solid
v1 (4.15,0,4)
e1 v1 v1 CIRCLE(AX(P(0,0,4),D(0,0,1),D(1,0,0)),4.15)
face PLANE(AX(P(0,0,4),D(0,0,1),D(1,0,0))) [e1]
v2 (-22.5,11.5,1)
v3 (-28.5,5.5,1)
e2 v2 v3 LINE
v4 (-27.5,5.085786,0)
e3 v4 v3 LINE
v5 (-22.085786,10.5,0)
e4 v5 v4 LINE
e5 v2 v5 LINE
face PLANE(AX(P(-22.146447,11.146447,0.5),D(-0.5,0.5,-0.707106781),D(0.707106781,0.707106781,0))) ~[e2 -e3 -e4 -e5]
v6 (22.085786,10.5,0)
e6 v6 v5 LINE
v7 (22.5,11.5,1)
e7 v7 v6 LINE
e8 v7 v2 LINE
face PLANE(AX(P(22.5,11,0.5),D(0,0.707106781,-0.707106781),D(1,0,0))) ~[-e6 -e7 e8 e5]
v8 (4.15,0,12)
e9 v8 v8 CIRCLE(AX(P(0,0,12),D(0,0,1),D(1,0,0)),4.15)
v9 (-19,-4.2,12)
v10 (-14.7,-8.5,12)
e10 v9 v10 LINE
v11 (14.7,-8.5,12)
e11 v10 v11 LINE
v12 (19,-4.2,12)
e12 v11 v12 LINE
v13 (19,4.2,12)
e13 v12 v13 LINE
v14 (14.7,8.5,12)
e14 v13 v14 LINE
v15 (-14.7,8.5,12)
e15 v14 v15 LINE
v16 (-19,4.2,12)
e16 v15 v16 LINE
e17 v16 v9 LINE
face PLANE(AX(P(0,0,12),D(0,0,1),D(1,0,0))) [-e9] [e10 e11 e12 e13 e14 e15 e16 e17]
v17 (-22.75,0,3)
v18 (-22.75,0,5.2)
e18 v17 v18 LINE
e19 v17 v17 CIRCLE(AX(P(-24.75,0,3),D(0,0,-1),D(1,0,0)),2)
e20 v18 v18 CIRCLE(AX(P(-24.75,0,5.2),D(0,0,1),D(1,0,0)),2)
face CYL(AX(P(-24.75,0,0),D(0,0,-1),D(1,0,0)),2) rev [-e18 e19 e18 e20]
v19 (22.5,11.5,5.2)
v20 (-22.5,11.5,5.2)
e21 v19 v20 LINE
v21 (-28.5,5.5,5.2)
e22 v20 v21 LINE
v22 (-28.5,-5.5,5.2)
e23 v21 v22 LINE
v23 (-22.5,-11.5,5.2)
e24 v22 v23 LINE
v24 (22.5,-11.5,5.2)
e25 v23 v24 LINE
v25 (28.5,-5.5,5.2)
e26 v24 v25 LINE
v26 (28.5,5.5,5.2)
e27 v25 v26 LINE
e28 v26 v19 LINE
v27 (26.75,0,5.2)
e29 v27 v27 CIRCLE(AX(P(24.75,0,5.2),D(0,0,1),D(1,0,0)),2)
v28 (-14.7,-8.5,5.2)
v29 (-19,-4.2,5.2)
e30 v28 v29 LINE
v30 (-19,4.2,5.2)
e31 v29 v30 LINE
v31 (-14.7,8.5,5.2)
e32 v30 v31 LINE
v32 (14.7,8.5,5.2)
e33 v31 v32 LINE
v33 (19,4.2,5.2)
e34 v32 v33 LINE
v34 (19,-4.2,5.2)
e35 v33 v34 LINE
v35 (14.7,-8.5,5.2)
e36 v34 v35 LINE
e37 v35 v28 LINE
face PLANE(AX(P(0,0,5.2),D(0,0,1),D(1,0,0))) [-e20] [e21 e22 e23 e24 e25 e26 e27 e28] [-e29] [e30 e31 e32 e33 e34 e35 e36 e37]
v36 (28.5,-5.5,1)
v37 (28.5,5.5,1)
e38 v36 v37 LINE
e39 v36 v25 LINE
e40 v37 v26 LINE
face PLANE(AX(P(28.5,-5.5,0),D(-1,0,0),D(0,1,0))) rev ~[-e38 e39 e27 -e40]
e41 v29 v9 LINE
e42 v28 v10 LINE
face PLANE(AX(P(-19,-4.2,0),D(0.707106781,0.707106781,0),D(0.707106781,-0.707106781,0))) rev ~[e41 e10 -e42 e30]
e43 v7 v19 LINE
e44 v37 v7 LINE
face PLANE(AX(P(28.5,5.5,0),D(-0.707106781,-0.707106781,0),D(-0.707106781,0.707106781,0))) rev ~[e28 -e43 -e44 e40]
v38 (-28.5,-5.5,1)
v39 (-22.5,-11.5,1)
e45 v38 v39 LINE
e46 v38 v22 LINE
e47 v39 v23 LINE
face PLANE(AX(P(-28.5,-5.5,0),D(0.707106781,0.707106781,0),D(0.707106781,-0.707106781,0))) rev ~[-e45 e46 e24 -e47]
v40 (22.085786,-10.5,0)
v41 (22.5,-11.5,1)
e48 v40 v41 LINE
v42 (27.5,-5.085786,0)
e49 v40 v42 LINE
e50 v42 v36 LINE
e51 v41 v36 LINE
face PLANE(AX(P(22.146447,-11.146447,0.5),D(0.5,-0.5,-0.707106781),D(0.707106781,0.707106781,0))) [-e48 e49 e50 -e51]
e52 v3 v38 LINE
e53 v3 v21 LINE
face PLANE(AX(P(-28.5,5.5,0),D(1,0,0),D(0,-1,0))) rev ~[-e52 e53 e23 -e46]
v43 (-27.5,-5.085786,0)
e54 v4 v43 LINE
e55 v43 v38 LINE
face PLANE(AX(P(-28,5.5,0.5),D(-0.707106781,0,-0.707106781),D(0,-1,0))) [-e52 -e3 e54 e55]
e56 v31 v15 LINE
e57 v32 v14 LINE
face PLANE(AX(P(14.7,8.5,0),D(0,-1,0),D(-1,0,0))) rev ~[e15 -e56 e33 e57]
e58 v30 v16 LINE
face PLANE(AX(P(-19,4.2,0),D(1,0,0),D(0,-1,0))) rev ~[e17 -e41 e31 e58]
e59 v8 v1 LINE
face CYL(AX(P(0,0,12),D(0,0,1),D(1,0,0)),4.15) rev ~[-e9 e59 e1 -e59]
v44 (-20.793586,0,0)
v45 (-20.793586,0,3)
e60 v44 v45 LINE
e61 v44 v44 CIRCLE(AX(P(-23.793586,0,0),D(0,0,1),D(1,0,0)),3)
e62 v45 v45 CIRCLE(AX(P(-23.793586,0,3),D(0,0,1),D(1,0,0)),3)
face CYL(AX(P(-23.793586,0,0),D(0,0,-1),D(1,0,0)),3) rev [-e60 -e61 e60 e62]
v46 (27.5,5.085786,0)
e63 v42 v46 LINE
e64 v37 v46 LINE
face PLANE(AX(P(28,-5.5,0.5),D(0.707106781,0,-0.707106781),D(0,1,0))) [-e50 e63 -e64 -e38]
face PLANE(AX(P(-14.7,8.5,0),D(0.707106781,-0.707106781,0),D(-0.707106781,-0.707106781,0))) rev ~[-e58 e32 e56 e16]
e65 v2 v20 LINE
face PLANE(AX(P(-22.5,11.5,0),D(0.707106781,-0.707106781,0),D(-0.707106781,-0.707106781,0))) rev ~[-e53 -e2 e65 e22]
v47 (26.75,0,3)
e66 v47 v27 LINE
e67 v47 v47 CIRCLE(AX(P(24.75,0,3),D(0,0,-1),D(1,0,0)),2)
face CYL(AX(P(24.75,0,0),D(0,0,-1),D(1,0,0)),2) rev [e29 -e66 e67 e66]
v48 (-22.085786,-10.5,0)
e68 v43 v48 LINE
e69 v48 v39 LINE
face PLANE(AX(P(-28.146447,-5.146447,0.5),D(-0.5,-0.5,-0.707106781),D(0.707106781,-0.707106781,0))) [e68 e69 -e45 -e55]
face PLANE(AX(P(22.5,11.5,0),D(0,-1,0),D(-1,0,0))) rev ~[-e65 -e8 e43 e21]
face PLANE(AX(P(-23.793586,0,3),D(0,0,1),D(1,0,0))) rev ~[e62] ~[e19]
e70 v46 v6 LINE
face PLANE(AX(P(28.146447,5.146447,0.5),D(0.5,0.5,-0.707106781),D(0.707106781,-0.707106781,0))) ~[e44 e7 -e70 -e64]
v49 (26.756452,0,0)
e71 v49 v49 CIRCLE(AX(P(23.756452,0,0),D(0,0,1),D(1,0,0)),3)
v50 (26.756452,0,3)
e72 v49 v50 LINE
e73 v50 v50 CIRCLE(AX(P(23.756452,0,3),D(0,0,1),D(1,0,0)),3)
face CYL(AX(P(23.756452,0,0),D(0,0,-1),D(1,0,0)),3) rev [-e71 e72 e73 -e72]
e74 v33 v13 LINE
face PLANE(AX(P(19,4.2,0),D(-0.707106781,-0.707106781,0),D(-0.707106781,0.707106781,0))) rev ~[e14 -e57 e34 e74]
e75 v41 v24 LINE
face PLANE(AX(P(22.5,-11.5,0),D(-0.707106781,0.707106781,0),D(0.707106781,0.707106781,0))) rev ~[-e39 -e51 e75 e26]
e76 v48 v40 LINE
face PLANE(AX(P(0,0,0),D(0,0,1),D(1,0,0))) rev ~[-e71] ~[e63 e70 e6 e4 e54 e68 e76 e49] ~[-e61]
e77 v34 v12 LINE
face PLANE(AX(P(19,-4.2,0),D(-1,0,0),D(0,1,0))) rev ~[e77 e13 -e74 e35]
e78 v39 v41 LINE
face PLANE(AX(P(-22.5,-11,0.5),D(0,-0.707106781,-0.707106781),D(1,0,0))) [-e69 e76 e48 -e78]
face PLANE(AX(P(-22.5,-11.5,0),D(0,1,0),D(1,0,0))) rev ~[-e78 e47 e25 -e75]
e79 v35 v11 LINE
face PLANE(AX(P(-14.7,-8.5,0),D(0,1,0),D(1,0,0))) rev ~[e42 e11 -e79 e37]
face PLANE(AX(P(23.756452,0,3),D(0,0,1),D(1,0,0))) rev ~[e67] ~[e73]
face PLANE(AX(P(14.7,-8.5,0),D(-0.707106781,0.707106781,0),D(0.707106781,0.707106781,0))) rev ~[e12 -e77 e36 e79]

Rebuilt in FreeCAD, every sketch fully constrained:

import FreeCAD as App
import Part
import Sketcher
from FreeCAD import Vector


def edges_at(feature, points):
    """Names of the edges that pass closest to the given points."""
    edges = feature.Shape.Edges
    near = lambda p: min(range(len(edges)), key=lambda i: edges[i].distToShape(Part.Vertex(*p))[0])
    return sorted({f"Edge{near(p) + 1}" for p in points})


def add_polygon(sketch, points):
    """Adds a closed chain of lines whose ends are joined by coincident constraints."""
    first, n = sketch.GeometryCount, len(points)
    for a, b in zip(points, points[1:] + points[:1]):
        sketch.addGeometry(Part.LineSegment(App.Vector(*a, 0), App.Vector(*b, 0)), False)
    for i in range(n):
        sketch.addConstraint(Sketcher.Constraint("Coincident", first + i, 2, first + (i + 1) % n, 1))

doc = App.newDocument("Part")
body = doc.addObject("PartDesign::Body", "Body")

# Sketch on XY plane
sketch1 = body.newObject("Sketcher::SketchObject", "Sketch")
sketch1.AttachmentSupport = (doc.getObject("XY_Plane"), [""])
sketch1.MapMode = "FlatFace"
add_polygon(sketch1, [(15, 8), (-15, 8), (-19, 4), (-19, -4), (-15, -8), (15, -8), (19, -4), (19, 4)])  # lines 0-7
sketch1.addConstraint(Sketcher.Constraint("Horizontal", 0))
sketch1.addConstraint(Sketcher.Constraint("Vertical", 2))
sketch1.addConstraint(Sketcher.Constraint("Horizontal", 4))
sketch1.addConstraint(Sketcher.Constraint("Vertical", 6))
sketch1.addConstraint(Sketcher.Constraint("Symmetric", 0, 2, 4, 2, -1, 1))
sketch1.addConstraint(Sketcher.Constraint("Symmetric", 1, 2, 5, 2, -1, 1))
sketch1.addConstraint(Sketcher.Constraint("Perpendicular", 1, 3))
sketch1.addConstraint(Sketcher.Constraint("Perpendicular", 5, 7))
sketch1.addConstraint(Sketcher.Constraint("Horizontal", 2, 2, 5, 2))
sketch1.addConstraint(Sketcher.Constraint("Horizontal", 1, 2, 6, 2))
sketch1.addConstraint(Sketcher.Constraint("Vertical", 0, 2, 3, 2))
sketch1.addConstraint(Sketcher.Constraint("DistanceX", 0, 2, 0, 1, 29.4))
sketch1.addConstraint(Sketcher.Constraint("DistanceY", 2, 2, 2, 1, 8.4))
sketch1.addConstraint(Sketcher.Constraint("DistanceX", 1, 2, -1, 1, 19.0))
pad1 = body.newObject("PartDesign::Pad", "Pad")
pad1.Profile = sketch1
pad1.Length = 12

# Sketch on XY plane
sketch2 = body.newObject("Sketcher::SketchObject", "Sketch001")
sketch2.AttachmentSupport = (doc.getObject("XY_Plane"), [""])
sketch2.MapMode = "FlatFace"
add_polygon(sketch2, [(22.5, 11.5), (-22.5, 11.5), (-28.5, 5.5), (-28.5, -5.5), (-22.5, -11.5), (22.5, -11.5), (28.5, -5.5), (28.5, 5.5)])  # lines 0-7
sketch2.addGeometry(Part.Circle(Vector(-24.8, 0, 0), Vector(0, 0, 1), 2), False)  # 8
add_polygon(sketch2, [(-19, -4.2), (-19, 4.2), (-14.7, 8.5), (14.7, 8.5), (19, 4.2), (19, -4.2), (14.7, -8.5), (-14.7, -8.5)])  # lines 9-16
sketch2.addGeometry(Part.Circle(Vector(24.8, 0, 0), Vector(0, 0, 1), 2), False)  # 17
sketch2.addConstraint(Sketcher.Constraint("Horizontal", 0))
sketch2.addConstraint(Sketcher.Constraint("Vertical", 2))
sketch2.addConstraint(Sketcher.Constraint("Horizontal", 4))
sketch2.addConstraint(Sketcher.Constraint("Vertical", 6))
sketch2.addConstraint(Sketcher.Constraint("Vertical", 9))
sketch2.addConstraint(Sketcher.Constraint("Horizontal", 11))
sketch2.addConstraint(Sketcher.Constraint("Vertical", 13))
sketch2.addConstraint(Sketcher.Constraint("Horizontal", 15))
sketch2.addConstraint(Sketcher.Constraint("Equal", 8, 17))
sketch2.addConstraint(Sketcher.Constraint("Symmetric", 8, 3, 17, 3, -1, 1))
sketch2.addConstraint(Sketcher.Constraint("Symmetric", 0, 2, 4, 2, -1, 1))
sketch2.addConstraint(Sketcher.Constraint("Symmetric", 1, 2, 5, 2, -1, 1))
sketch2.addConstraint(Sketcher.Constraint("Symmetric", 9, 2, 13, 2, -1, 1))
sketch2.addConstraint(Sketcher.Constraint("Symmetric", 10, 2, 14, 2, -1, 1))
sketch2.addConstraint(Sketcher.Constraint("PointOnObject", 8, 3, -1))
sketch2.addConstraint(Sketcher.Constraint("Perpendicular", 1, 3))
sketch2.addConstraint(Sketcher.Constraint("Perpendicular", 5, 7))
sketch2.addConstraint(Sketcher.Constraint("Perpendicular", 7, 10))
sketch2.addConstraint(Sketcher.Constraint("Perpendicular", 10, 12))
sketch2.addConstraint(Sketcher.Constraint("Perpendicular", 14, 16))
sketch2.addConstraint(Sketcher.Constraint("Horizontal", 2, 2, 5, 2))
sketch2.addConstraint(Sketcher.Constraint("Horizontal", 1, 2, 6, 2))
sketch2.addConstraint(Sketcher.Constraint("Horizontal", 9, 2, 12, 2))
sketch2.addConstraint(Sketcher.Constraint("Horizontal", 13, 2, 16, 2))
sketch2.addConstraint(Sketcher.Constraint("Vertical", 0, 2, 3, 2))
sketch2.addConstraint(Sketcher.Constraint("Diameter", 8, 4.0))
sketch2.addConstraint(Sketcher.Constraint("DistanceX", 0, 2, 0, 1, 45.0))
sketch2.addConstraint(Sketcher.Constraint("DistanceY", 2, 2, 2, 1, 11.0))
sketch2.addConstraint(Sketcher.Constraint("DistanceX", 11, 1, 11, 2, 29.4))
sketch2.addConstraint(Sketcher.Constraint("DistanceY", 9, 1, 9, 2, 8.4))
sketch2.addConstraint(Sketcher.Constraint("DistanceX", 9, 2, -1, 1, 19.0))
sketch2.addConstraint(Sketcher.Constraint("DistanceX", 1, 2, 0, 2, 6.0))
sketch2.addConstraint(Sketcher.Constraint("DistanceX", 8, 3, 17, 3, 49.5))
pad2 = body.newObject("PartDesign::Pad", "Pad001")
pad2.Profile = sketch2
pad2.Length = 5.2
doc.recompute()

chamfer = body.newObject("PartDesign::Chamfer", "Chamfer")
chamfer.Base = (pad2, edges_at(pad2, [
    (0, -11.5, 0),
    (-25.5, -8.5, 0),
    (-28.5, 0, 0),
    (-25.5, 8.5, 0),
    (0, 11.5, 0),
    (25.5, 8.5, 0),
    (28.5, 0, 0),
    (25.5, -8.5, 0),
]))
chamfer.Size = 1

# Sketch on XY plane
sketch3 = body.newObject("Sketcher::SketchObject", "Sketch002")
sketch3.AttachmentSupport = (doc.getObject("XY_Plane"), [""])
sketch3.MapMode = "FlatFace"
sketch3.AttachmentOffset = App.Placement(Vector(0, 0, 12), App.Rotation())
sketch3.addGeometry(Part.Circle(Vector(0, 0, 0), Vector(0, 0, 1), 4.2), False)
sketch3.addConstraint(Sketcher.Constraint("Coincident", 0, 3, -1, 1))
sketch3.addConstraint(Sketcher.Constraint("Diameter", 0, 8.3))
pocket1 = body.newObject("PartDesign::Pocket", "Pocket")
pocket1.Profile = sketch3
pocket1.Length = 8

# Sketch on XY plane
sketch4 = body.newObject("Sketcher::SketchObject", "Sketch003")
sketch4.AttachmentSupport = (doc.getObject("XY_Plane"), [""])
sketch4.MapMode = "FlatFace"
sketch4.addGeometry(Part.Circle(Vector(-23.8, 0, 0), Vector(0, 0, 1), 3), False)
sketch4.addGeometry(Part.Circle(Vector(23.8, 0, 0), Vector(0, 0, 1), 3), False)
sketch4.addConstraint(Sketcher.Constraint("Equal", 0, 1))
sketch4.addConstraint(Sketcher.Constraint("PointOnObject", 0, 3, -1))
sketch4.addConstraint(Sketcher.Constraint("PointOnObject", 1, 3, -1))
sketch4.addConstraint(Sketcher.Constraint("Diameter", 0, 6.0))
sketch4.addConstraint(Sketcher.Constraint("DistanceX", -1, 1, 1, 3, 23.756452))
sketch4.addConstraint(Sketcher.Constraint("DistanceX", 0, 3, -1, 1, 23.793586))
pocket2 = body.newObject("PartDesign::Pocket", "Pocket001")
pocket2.Profile = sketch4
pocket2.Length = 3
pocket2.Reversed = True

doc.recompute()
